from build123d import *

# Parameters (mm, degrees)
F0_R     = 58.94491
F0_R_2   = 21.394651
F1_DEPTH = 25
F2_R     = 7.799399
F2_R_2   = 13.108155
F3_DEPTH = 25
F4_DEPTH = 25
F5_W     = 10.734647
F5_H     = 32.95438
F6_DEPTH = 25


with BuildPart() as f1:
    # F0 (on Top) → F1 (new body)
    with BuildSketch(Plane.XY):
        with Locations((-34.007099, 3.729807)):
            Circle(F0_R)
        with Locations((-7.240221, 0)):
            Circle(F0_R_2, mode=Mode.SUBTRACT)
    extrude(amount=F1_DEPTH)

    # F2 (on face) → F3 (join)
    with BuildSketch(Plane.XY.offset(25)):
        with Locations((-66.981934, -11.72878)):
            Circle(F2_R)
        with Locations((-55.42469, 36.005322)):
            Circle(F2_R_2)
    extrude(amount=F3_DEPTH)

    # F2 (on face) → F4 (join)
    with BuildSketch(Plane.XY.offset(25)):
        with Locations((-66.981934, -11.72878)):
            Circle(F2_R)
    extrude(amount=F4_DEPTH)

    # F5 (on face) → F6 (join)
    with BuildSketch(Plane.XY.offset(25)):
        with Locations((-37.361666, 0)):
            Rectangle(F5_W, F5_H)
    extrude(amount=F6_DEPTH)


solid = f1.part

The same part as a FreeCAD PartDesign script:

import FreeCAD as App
import Part
import Sketcher


def add_polygon(sketch, points):
    """Adds a closed chain of lines whose ends are joined by coincident constraints."""
    first, n = sketch.GeometryCount, len(points)
    for a, b in zip(points, points[1:] + points[:1]):
        sketch.addGeometry(Part.LineSegment(App.Vector(*a, 0), App.Vector(*b, 0)), False)
    for i in range(n):
        sketch.addConstraint(Sketcher.Constraint("Coincident", first + i, 2, first + (i + 1) % n, 1))

doc = App.newDocument("Part")
body = doc.addObject("PartDesign::Body", "Body")

sketch1 = body.newObject("Sketcher::SketchObject", "Sketch")
sketch1.AttachmentSupport = (doc.getObject("XY_Plane"), [""])
sketch1.MapMode = "FlatFace"
sketch1.addGeometry([
    Part.Circle(App.Vector(-34.007099, 3.729807, 0), App.Vector(0, 0, 1), 58.94491),
    Part.Circle(App.Vector(-7.240221, 0, 0), App.Vector(0, 0, 1), 21.394651),
], False)
sketch1.addConstraint([
    Sketcher.Constraint("PointOnObject", 1, 3, -1),
    Sketcher.Constraint("Diameter", 0, 117.88982),
    Sketcher.Constraint("Diameter", 1, 42.789302),
    Sketcher.Constraint("DistanceX", 0, 3, -1, 1, 34.007099),
    Sketcher.Constraint("DistanceX", 1, 3, -1, 1, 7.240221),
    Sketcher.Constraint("DistanceY", -1, 1, 0, 3, 3.729807),
])
pad1 = body.newObject("PartDesign::Pad", "Pad")
pad1.Profile = sketch1
pad1.Length = 25

sketch2 = body.newObject("Sketcher::SketchObject", "Sketch001")
sketch2.AttachmentSupport = (doc.getObject("XY_Plane"), [""])
sketch2.MapMode = "FlatFace"
sketch2.AttachmentOffset = App.Placement(App.Vector(0, 0, 25), App.Rotation())
sketch2.addGeometry([
    Part.Circle(App.Vector(-66.981934, -11.72878, 0), App.Vector(0, 0, 1), 7.799399),
    Part.Circle(App.Vector(-55.42469, 36.005322, 0), App.Vector(0, 0, 1), 13.108155),
], False)
sketch2.addConstraint([
    Sketcher.Constraint("Diameter", 1, 26.21631),
    Sketcher.Constraint("Diameter", 0, 15.598798),
    Sketcher.Constraint("DistanceY", 0, 3, -1, 1, 11.72878),
    Sketcher.Constraint("DistanceX", 1, 3, -1, 1, 55.42469),
    Sketcher.Constraint("DistanceX", 0, 3, -1, 1, 66.981934),
    Sketcher.Constraint("DistanceY", -1, 1, 1, 3, 36.005322),
])
pad2 = body.newObject("PartDesign::Pad", "Pad001")
pad2.Profile = sketch2
pad2.Length = 25

sketch3 = body.newObject("Sketcher::SketchObject", "Sketch002")
sketch3.AttachmentSupport = (doc.getObject("XY_Plane"), [""])
sketch3.MapMode = "FlatFace"
sketch3.AttachmentOffset = App.Placement(App.Vector(0, 0, 25), App.Rotation())
sketch3.addGeometry(Part.Circle(App.Vector(-66.981934, -11.72878, 0), App.Vector(0, 0, 1), 7.799399), False)
sketch3.addConstraint([
    Sketcher.Constraint("Diameter", 0, 15.598798),
    Sketcher.Constraint("DistanceY", 0, 3, -1, 1, 11.72878),
    Sketcher.Constraint("DistanceX", 0, 3, -1, 1, 66.981934),
])
pad3 = body.newObject("PartDesign::Pad", "Pad002")
pad3.Profile = sketch3
pad3.Length = 25

sketch4 = body.newObject("Sketcher::SketchObject", "Sketch003")
sketch4.AttachmentSupport = (doc.getObject("XY_Plane"), [""])
sketch4.MapMode = "FlatFace"
sketch4.AttachmentOffset = App.Placement(App.Vector(0, 0, 25), App.Rotation())
add_polygon(sketch4, [(-42.728989, 16.47719), (-42.728989, -16.47719), (-31.994342, -16.47719), (-31.994342, 16.47719)])
sketch4.addConstraint([
    Sketcher.Constraint("Vertical", 0),
    Sketcher.Constraint("Horizontal", 1),
    Sketcher.Constraint("Vertical", 2),
    Sketcher.Constraint("Horizontal", 3),
    Sketcher.Constraint("DistanceY", 0, 2, 0, 1, 32.95438),
    Sketcher.Constraint("DistanceX", 1, 1, 1, 2, 10.734647),
    Sketcher.Constraint("DistanceX", 0, 2, -1, 1, 42.728989),
    Sketcher.Constraint("DistanceY", 0, 2, -1, 1, 16.47719),
])
pad4 = body.newObject("PartDesign::Pad", "Pad003")
pad4.Profile = sketch4
pad4.Length = 25

doc.recompute()
